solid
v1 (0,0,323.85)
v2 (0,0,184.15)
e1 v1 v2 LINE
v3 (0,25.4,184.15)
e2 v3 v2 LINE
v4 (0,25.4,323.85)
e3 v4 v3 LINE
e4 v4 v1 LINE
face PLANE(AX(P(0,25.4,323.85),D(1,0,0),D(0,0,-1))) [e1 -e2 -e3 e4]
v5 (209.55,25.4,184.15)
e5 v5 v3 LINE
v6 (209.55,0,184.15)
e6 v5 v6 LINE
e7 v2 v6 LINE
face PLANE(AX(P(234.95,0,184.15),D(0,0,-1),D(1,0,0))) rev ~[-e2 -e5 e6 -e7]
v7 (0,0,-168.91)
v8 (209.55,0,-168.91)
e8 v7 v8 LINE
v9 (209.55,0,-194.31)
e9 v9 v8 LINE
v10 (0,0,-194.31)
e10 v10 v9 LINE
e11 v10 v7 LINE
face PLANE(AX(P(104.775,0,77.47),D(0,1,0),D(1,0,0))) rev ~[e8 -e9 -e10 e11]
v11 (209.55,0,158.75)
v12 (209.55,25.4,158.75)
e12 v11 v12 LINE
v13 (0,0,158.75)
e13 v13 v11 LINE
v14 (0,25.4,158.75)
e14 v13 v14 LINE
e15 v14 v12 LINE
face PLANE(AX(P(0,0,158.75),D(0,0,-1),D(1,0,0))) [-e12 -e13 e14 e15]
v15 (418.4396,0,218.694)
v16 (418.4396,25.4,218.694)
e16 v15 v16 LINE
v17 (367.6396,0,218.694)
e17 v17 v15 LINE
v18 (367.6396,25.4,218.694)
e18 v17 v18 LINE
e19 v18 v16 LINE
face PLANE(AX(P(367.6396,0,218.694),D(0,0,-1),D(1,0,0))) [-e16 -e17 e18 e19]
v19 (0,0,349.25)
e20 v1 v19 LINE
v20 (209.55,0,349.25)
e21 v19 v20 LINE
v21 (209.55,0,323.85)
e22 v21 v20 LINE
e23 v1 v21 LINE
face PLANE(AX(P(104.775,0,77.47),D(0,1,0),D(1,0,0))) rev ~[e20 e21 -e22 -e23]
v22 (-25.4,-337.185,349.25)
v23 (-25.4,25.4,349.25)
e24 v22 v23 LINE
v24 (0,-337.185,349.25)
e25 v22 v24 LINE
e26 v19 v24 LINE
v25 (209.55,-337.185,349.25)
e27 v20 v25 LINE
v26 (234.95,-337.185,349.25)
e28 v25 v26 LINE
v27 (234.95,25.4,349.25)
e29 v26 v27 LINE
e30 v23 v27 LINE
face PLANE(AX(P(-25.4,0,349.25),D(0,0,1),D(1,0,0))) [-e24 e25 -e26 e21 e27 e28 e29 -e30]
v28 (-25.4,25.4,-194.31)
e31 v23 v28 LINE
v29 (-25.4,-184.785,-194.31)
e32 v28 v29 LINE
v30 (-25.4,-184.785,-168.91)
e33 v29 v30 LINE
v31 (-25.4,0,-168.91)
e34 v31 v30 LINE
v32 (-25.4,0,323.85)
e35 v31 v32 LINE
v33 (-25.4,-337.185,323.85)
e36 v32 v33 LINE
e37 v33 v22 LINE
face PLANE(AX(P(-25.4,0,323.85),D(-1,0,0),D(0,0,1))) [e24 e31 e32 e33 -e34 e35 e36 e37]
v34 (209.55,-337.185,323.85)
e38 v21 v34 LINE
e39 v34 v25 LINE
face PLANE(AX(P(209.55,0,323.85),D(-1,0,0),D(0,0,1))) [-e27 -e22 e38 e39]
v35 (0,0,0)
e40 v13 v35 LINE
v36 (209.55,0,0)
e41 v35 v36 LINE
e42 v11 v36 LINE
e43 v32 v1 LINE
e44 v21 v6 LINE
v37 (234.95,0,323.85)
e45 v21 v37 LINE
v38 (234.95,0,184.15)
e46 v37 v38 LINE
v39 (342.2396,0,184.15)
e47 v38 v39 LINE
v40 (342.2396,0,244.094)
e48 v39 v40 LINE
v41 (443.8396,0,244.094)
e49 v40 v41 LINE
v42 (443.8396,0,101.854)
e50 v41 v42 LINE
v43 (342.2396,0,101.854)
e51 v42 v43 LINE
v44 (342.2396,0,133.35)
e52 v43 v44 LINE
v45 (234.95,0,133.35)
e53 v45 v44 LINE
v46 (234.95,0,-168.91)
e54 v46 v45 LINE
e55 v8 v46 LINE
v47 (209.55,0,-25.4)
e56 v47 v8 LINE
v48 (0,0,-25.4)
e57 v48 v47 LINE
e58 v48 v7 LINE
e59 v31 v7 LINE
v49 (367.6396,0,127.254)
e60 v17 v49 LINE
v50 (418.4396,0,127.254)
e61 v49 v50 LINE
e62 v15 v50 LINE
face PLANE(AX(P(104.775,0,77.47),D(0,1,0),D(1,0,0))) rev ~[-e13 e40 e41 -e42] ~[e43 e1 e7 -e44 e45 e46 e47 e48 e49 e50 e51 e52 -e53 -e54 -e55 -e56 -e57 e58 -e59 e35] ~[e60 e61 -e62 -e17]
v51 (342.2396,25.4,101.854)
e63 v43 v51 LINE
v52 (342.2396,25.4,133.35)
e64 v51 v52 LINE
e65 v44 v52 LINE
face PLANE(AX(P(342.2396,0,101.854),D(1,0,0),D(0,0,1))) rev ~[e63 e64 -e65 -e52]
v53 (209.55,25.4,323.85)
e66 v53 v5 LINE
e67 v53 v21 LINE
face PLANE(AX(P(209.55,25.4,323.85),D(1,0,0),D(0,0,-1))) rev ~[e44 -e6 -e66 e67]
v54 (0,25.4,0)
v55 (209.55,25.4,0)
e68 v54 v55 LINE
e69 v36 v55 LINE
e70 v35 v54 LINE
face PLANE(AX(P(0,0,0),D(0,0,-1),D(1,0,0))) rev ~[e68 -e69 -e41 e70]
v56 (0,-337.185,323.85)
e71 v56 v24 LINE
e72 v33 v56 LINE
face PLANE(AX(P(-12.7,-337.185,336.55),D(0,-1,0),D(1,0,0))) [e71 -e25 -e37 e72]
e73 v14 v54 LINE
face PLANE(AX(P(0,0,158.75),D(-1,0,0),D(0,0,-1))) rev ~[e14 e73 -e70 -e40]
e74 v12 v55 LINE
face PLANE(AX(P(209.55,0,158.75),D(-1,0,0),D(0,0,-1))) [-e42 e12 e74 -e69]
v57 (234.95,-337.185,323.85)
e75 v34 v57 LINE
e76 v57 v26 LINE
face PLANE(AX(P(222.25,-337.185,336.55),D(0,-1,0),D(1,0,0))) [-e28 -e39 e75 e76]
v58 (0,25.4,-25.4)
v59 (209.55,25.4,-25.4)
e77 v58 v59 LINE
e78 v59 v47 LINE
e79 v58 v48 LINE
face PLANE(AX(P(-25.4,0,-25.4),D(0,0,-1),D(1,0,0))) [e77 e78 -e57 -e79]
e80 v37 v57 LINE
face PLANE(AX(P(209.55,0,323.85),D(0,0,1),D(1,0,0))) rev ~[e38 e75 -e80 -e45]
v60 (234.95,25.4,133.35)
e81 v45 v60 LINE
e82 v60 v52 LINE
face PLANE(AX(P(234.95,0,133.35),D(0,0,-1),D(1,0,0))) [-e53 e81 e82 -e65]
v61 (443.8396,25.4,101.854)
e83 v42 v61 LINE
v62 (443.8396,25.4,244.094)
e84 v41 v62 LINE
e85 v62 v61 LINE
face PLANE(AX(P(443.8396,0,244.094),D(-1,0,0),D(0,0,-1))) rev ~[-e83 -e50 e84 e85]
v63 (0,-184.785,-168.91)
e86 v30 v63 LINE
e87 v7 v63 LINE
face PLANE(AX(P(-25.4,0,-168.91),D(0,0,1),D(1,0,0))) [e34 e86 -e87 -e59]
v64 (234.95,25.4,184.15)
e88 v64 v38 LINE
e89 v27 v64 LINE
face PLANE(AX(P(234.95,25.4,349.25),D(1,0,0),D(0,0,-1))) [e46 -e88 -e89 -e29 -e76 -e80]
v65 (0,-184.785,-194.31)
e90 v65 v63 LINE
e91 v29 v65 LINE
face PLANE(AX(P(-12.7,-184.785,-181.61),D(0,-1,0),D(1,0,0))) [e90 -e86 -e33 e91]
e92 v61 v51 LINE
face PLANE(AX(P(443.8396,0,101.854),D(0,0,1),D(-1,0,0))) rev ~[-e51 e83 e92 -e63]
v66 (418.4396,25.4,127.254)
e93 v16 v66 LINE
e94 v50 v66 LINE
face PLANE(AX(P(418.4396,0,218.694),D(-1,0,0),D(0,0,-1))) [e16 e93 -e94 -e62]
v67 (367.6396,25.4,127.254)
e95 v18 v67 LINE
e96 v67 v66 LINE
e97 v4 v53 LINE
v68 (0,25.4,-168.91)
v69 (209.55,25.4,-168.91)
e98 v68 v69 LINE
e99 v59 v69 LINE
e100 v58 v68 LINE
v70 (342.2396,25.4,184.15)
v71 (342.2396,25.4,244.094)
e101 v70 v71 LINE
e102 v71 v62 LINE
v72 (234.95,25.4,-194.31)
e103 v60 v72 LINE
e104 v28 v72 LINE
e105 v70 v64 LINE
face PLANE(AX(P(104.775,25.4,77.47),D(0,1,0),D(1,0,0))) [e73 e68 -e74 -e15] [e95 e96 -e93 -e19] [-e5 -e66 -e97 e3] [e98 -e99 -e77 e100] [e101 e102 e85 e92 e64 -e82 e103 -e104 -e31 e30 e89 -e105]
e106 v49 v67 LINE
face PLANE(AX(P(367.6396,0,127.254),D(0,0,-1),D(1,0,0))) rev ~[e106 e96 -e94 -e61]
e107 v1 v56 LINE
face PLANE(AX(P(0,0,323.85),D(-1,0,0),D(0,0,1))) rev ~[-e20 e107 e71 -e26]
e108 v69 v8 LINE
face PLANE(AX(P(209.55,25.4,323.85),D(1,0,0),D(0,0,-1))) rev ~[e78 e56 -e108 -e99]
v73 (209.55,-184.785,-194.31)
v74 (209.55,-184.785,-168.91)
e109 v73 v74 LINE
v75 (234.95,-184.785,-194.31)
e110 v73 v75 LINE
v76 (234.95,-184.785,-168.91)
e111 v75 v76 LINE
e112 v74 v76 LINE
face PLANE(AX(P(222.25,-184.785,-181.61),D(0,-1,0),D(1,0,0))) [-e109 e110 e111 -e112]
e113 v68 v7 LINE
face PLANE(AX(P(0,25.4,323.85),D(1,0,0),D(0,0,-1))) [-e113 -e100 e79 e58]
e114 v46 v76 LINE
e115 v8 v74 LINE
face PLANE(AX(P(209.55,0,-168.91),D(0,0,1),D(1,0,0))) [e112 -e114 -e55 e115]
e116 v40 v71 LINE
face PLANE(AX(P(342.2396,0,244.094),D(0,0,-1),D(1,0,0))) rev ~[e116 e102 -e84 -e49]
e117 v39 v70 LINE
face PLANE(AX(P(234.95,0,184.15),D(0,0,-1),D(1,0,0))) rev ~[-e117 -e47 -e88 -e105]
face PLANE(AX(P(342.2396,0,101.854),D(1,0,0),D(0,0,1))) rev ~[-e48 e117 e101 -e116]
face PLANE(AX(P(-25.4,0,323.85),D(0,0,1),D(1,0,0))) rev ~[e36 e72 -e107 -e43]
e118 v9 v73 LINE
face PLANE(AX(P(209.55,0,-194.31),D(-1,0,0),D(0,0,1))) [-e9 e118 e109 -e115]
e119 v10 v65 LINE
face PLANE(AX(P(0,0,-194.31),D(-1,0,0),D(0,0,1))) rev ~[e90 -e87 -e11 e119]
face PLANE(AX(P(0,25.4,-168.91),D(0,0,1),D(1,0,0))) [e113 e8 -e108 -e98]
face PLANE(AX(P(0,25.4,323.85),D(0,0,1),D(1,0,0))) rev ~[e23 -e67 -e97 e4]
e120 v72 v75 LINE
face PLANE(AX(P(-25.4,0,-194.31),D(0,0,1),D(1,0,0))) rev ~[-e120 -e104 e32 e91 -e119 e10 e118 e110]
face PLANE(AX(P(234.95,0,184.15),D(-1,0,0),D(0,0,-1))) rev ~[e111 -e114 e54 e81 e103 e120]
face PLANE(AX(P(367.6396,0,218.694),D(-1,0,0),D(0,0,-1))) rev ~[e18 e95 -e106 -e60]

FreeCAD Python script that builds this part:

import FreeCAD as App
import Part
import Sketcher
Q = App.Units.Quantity


def add_polygon(sketch, points):
    """Adds a closed chain of lines whose ends are joined by coincident constraints."""
    first, n = sketch.GeometryCount, len(points)
    for a, b in zip(points, points[1:] + points[:1]):
        sketch.addGeometry(Part.LineSegment(App.Vector(*a, 0), App.Vector(*b, 0)), False)
    for i in range(n):
        sketch.addConstraint(Sketcher.Constraint("Coincident", first + i, 2, first + (i + 1) % n, 1))

doc = App.newDocument("Part")
body = doc.addObject("PartDesign::Body", "Body")

# Sketch on XZ plane
sketch1 = body.newObject("Sketcher::SketchObject", "Sketch")
sketch1.AttachmentSupport = (doc.getObject("XZ_Plane"), [""])
sketch1.MapMode = "FlatFace"
add_polygon(sketch1, [(-25.4, -25.4), (-25.4, 184.15), (342.2396, 184.15), (342.2396, 244.094), (443.8396, 244.094), (443.8396, 101.854), (342.2396, 101.854), (342.2396, 133.35), (234.95, 133.35), (234.95, -25.4)])  # lines 0-9
add_polygon(sketch1, [(209.55, 158.75), (0, 158.75), (0, 0), (209.55, 0)])  # lines 10-13
add_polygon(sketch1, [(367.6396, 218.694), (367.6396, 127.254), (418.4396, 127.254), (418.4396, 218.694)])  # lines 14-17
sketch1.addConstraint([
    Sketcher.Constraint("Vertical", 0),
    Sketcher.Constraint("Horizontal", 1),
    Sketcher.Constraint("Vertical", 2),
    Sketcher.Constraint("Horizontal", 3),
    Sketcher.Constraint("Vertical", 4),
    Sketcher.Constraint("Horizontal", 5),
    Sketcher.Constraint("Vertical", 6),
    Sketcher.Constraint("Horizontal", 7),
    Sketcher.Constraint("Vertical", 8),
    Sketcher.Constraint("Horizontal", 9),
    Sketcher.Constraint("Horizontal", 10),
    Sketcher.Constraint("Vertical", 11),
    Sketcher.Constraint("Horizontal", 12),
    Sketcher.Constraint("Vertical", 13),
    Sketcher.Constraint("Vertical", 14),
    Sketcher.Constraint("Horizontal", 15),
    Sketcher.Constraint("Vertical", 16),
    Sketcher.Constraint("Horizontal", 17),
    Sketcher.Constraint("Coincident", 11, 2, -1, 1),
    Sketcher.Constraint("Vertical", 2, 2, 5, 2),
    Sketcher.Constraint("Equal", 12, 0),
    Sketcher.Constraint("Equal", 8, 11),
    Sketcher.Constraint("DistanceX", 3, 1, 3, 2, Q("4 in")),
    Sketcher.Constraint("DistanceX", 15, 1, 15, 2, Q("2 in")),
    Sketcher.Constraint("DistanceY", 4, 2, 4, 1, Q("5.6 in")),
    Sketcher.Constraint("DistanceY", 14, 2, 14, 1, Q("3.6 in")),
    Sketcher.Constraint("DistanceX", 0, 2, -1, 1, Q("1 in")),
    Sketcher.Constraint("DistanceY", 8, 2, -1, 1, Q("1 in")),
    Sketcher.Constraint("DistanceY", 6, 2, 1, 2, Q("2 in")),
    Sketcher.Constraint("DistanceX", 12, 2, 8, 2, Q("1 in")),
    Sketcher.Constraint("DistanceX", 6, 2, 14, 2, Q("1 in")),
    Sketcher.Constraint("DistanceY", 5, 2, 14, 2, Q("1 in")),
    Sketcher.Constraint("DistanceX", 9, 2, 9, 1, Q("10.25 in")),
    Sketcher.Constraint("DistanceY", 2, 1, 2, 2, Q("2.36 in")),
    Sketcher.Constraint("DistanceX", 1, 1, 1, 2, Q("14.474 in")),
])
pad1 = body.newObject("PartDesign::Pad", "Pad")
pad1.Profile = sketch1
pad1.Length = Q("1 in")
pad1.Reversed = True

# Sketch on XZ plane
sketch2 = body.newObject("Sketcher::SketchObject", "Sketch001")
sketch2.AttachmentSupport = (doc.getObject("XZ_Plane"), [""])
sketch2.MapMode = "FlatFace"
sketch2.AttachmentOffset = App.Placement(App.Vector(0, 0, -1 * 25.4), App.Rotation())
add_polygon(sketch2, [(-25.4, -194.31), (-25.4, 349.25), (234.95, 349.25), (234.95, -194.31)])  # lines 0-3
add_polygon(sketch2, [(209.55, 323.85), (0, 323.85), (0, -168.91), (209.55, -168.91)])  # lines 4-7
sketch2.addConstraint([
    Sketcher.Constraint("Vertical", 0),
    Sketcher.Constraint("Horizontal", 1),
    Sketcher.Constraint("Vertical", 2),
    Sketcher.Constraint("Horizontal", 3),
    Sketcher.Constraint("Horizontal", 4),
    Sketcher.Constraint("Vertical", 5),
    Sketcher.Constraint("Horizontal", 6),
    Sketcher.Constraint("Vertical", 7),
    Sketcher.Constraint("PointOnObject", 4, 2, -2),
    Sketcher.Constraint("DistanceY", 0, 1, 0, 2, Q("21.4 in")),
    Sketcher.Constraint("DistanceY", 5, 2, 5, 1, Q("19.4 in")),
    Sketcher.Constraint("DistanceX", 0, 2, -1, 1, Q("1 in")),
    Sketcher.Constraint("DistanceY", 4, 2, 0, 2, Q("1 in")),
    Sketcher.Constraint("DistanceX", 6, 2, 2, 2, Q("1 in")),
    Sketcher.Constraint("DistanceX", 1, 1, 1, 2, Q("10.25 in")),
    Sketcher.Constraint("DistanceY", -1, 1, 0, 2, Q("13.75 in")),
])
pad2 = body.newObject("PartDesign::Pad", "Pad001")
pad2.Profile = sketch2
pad2.Length = Q("1 in")

# Sketch on XZ plane
sketch3 = body.newObject("Sketcher::SketchObject", "Sketch002")
sketch3.AttachmentSupport = (doc.getObject("XZ_Plane"), [""])
sketch3.MapMode = "FlatFace"
add_polygon(sketch3, [(-25.4, -168.91), (-25.4, -194.31), (0, -194.31), (0, -168.91)])  # lines 0-3
add_polygon(sketch3, [(209.55, -168.91), (209.55, -194.31), (234.95, -194.31), (234.95, -168.91)])  # lines 4-7
sketch3.addConstraint([
    Sketcher.Constraint("Vertical", 0),
    Sketcher.Constraint("Horizontal", 1),
    Sketcher.Constraint("Vertical", 2),
    Sketcher.Constraint("Horizontal", 3),
    Sketcher.Constraint("Vertical", 4),
    Sketcher.Constraint("Horizontal", 5),
    Sketcher.Constraint("Vertical", 6),
    Sketcher.Constraint("Horizontal", 7),
    Sketcher.Constraint("PointOnObject", 1, 2, -2),
    Sketcher.Constraint("Horizontal", 1, 2, 4, 2),
    Sketcher.Constraint("Horizontal", 3, 2, 6, 2),
    Sketcher.Constraint("Equal", 3, 5),
    Sketcher.Constraint("Equal", 7, 0),
    Sketcher.Constraint("DistanceX", 1, 1, 1, 2, Q("1 in")),
    Sketcher.Constraint("DistanceY", 0, 2, -1, 1, Q("7.65 in")),
    Sketcher.Constraint("DistanceX", -1, 1, 4, 2, Q("8.25 in")),
])
pad3 = body.newObject("PartDesign::Pad", "Pad002")
pad3.Profile = sketch3
pad3.Length = Q("7.275 in")

# Sketch on XZ plane
sketch4 = body.newObject("Sketcher::SketchObject", "Sketch003")
sketch4.AttachmentSupport = (doc.getObject("XZ_Plane"), [""])
sketch4.MapMode = "FlatFace"
add_polygon(sketch4, [(-25.4, 349.25), (-25.4, 323.85), (0, 323.85), (0, 349.25)])  # lines 0-3
add_polygon(sketch4, [(209.55, 349.25), (209.55, 323.85), (234.95, 323.85), (234.95, 349.25)])  # lines 4-7
sketch4.addConstraint([
    Sketcher.Constraint("Vertical", 0),
    Sketcher.Constraint("Horizontal", 1),
    Sketcher.Constraint("Vertical", 2),
    Sketcher.Constraint("Horizontal", 3),
    Sketcher.Constraint("Vertical", 4),
    Sketcher.Constraint("Horizontal", 5),
    Sketcher.Constraint("Vertical", 6),
    Sketcher.Constraint("Horizontal", 7),
    Sketcher.Constraint("PointOnObject", 1, 2, -2),
    Sketcher.Constraint("Horizontal", 1, 2, 4, 2),
    Sketcher.Constraint("Horizontal", 3, 2, 6, 2),
    Sketcher.Constraint("Equal", 3, 5),
    Sketcher.Constraint("Equal", 7, 0),
    Sketcher.Constraint("DistanceX", 1, 1, 1, 2, Q("1 in")),
    Sketcher.Constraint("DistanceY", -1, 1, 0, 2, Q("12.75 in")),
    Sketcher.Constraint("DistanceX", -1, 1, 4, 2, Q("8.25 in")),
])
pad4 = body.newObject("PartDesign::Pad", "Pad003")
pad4.Profile = sketch4
pad4.Length = Q("13.275 in")

doc.recompute()
